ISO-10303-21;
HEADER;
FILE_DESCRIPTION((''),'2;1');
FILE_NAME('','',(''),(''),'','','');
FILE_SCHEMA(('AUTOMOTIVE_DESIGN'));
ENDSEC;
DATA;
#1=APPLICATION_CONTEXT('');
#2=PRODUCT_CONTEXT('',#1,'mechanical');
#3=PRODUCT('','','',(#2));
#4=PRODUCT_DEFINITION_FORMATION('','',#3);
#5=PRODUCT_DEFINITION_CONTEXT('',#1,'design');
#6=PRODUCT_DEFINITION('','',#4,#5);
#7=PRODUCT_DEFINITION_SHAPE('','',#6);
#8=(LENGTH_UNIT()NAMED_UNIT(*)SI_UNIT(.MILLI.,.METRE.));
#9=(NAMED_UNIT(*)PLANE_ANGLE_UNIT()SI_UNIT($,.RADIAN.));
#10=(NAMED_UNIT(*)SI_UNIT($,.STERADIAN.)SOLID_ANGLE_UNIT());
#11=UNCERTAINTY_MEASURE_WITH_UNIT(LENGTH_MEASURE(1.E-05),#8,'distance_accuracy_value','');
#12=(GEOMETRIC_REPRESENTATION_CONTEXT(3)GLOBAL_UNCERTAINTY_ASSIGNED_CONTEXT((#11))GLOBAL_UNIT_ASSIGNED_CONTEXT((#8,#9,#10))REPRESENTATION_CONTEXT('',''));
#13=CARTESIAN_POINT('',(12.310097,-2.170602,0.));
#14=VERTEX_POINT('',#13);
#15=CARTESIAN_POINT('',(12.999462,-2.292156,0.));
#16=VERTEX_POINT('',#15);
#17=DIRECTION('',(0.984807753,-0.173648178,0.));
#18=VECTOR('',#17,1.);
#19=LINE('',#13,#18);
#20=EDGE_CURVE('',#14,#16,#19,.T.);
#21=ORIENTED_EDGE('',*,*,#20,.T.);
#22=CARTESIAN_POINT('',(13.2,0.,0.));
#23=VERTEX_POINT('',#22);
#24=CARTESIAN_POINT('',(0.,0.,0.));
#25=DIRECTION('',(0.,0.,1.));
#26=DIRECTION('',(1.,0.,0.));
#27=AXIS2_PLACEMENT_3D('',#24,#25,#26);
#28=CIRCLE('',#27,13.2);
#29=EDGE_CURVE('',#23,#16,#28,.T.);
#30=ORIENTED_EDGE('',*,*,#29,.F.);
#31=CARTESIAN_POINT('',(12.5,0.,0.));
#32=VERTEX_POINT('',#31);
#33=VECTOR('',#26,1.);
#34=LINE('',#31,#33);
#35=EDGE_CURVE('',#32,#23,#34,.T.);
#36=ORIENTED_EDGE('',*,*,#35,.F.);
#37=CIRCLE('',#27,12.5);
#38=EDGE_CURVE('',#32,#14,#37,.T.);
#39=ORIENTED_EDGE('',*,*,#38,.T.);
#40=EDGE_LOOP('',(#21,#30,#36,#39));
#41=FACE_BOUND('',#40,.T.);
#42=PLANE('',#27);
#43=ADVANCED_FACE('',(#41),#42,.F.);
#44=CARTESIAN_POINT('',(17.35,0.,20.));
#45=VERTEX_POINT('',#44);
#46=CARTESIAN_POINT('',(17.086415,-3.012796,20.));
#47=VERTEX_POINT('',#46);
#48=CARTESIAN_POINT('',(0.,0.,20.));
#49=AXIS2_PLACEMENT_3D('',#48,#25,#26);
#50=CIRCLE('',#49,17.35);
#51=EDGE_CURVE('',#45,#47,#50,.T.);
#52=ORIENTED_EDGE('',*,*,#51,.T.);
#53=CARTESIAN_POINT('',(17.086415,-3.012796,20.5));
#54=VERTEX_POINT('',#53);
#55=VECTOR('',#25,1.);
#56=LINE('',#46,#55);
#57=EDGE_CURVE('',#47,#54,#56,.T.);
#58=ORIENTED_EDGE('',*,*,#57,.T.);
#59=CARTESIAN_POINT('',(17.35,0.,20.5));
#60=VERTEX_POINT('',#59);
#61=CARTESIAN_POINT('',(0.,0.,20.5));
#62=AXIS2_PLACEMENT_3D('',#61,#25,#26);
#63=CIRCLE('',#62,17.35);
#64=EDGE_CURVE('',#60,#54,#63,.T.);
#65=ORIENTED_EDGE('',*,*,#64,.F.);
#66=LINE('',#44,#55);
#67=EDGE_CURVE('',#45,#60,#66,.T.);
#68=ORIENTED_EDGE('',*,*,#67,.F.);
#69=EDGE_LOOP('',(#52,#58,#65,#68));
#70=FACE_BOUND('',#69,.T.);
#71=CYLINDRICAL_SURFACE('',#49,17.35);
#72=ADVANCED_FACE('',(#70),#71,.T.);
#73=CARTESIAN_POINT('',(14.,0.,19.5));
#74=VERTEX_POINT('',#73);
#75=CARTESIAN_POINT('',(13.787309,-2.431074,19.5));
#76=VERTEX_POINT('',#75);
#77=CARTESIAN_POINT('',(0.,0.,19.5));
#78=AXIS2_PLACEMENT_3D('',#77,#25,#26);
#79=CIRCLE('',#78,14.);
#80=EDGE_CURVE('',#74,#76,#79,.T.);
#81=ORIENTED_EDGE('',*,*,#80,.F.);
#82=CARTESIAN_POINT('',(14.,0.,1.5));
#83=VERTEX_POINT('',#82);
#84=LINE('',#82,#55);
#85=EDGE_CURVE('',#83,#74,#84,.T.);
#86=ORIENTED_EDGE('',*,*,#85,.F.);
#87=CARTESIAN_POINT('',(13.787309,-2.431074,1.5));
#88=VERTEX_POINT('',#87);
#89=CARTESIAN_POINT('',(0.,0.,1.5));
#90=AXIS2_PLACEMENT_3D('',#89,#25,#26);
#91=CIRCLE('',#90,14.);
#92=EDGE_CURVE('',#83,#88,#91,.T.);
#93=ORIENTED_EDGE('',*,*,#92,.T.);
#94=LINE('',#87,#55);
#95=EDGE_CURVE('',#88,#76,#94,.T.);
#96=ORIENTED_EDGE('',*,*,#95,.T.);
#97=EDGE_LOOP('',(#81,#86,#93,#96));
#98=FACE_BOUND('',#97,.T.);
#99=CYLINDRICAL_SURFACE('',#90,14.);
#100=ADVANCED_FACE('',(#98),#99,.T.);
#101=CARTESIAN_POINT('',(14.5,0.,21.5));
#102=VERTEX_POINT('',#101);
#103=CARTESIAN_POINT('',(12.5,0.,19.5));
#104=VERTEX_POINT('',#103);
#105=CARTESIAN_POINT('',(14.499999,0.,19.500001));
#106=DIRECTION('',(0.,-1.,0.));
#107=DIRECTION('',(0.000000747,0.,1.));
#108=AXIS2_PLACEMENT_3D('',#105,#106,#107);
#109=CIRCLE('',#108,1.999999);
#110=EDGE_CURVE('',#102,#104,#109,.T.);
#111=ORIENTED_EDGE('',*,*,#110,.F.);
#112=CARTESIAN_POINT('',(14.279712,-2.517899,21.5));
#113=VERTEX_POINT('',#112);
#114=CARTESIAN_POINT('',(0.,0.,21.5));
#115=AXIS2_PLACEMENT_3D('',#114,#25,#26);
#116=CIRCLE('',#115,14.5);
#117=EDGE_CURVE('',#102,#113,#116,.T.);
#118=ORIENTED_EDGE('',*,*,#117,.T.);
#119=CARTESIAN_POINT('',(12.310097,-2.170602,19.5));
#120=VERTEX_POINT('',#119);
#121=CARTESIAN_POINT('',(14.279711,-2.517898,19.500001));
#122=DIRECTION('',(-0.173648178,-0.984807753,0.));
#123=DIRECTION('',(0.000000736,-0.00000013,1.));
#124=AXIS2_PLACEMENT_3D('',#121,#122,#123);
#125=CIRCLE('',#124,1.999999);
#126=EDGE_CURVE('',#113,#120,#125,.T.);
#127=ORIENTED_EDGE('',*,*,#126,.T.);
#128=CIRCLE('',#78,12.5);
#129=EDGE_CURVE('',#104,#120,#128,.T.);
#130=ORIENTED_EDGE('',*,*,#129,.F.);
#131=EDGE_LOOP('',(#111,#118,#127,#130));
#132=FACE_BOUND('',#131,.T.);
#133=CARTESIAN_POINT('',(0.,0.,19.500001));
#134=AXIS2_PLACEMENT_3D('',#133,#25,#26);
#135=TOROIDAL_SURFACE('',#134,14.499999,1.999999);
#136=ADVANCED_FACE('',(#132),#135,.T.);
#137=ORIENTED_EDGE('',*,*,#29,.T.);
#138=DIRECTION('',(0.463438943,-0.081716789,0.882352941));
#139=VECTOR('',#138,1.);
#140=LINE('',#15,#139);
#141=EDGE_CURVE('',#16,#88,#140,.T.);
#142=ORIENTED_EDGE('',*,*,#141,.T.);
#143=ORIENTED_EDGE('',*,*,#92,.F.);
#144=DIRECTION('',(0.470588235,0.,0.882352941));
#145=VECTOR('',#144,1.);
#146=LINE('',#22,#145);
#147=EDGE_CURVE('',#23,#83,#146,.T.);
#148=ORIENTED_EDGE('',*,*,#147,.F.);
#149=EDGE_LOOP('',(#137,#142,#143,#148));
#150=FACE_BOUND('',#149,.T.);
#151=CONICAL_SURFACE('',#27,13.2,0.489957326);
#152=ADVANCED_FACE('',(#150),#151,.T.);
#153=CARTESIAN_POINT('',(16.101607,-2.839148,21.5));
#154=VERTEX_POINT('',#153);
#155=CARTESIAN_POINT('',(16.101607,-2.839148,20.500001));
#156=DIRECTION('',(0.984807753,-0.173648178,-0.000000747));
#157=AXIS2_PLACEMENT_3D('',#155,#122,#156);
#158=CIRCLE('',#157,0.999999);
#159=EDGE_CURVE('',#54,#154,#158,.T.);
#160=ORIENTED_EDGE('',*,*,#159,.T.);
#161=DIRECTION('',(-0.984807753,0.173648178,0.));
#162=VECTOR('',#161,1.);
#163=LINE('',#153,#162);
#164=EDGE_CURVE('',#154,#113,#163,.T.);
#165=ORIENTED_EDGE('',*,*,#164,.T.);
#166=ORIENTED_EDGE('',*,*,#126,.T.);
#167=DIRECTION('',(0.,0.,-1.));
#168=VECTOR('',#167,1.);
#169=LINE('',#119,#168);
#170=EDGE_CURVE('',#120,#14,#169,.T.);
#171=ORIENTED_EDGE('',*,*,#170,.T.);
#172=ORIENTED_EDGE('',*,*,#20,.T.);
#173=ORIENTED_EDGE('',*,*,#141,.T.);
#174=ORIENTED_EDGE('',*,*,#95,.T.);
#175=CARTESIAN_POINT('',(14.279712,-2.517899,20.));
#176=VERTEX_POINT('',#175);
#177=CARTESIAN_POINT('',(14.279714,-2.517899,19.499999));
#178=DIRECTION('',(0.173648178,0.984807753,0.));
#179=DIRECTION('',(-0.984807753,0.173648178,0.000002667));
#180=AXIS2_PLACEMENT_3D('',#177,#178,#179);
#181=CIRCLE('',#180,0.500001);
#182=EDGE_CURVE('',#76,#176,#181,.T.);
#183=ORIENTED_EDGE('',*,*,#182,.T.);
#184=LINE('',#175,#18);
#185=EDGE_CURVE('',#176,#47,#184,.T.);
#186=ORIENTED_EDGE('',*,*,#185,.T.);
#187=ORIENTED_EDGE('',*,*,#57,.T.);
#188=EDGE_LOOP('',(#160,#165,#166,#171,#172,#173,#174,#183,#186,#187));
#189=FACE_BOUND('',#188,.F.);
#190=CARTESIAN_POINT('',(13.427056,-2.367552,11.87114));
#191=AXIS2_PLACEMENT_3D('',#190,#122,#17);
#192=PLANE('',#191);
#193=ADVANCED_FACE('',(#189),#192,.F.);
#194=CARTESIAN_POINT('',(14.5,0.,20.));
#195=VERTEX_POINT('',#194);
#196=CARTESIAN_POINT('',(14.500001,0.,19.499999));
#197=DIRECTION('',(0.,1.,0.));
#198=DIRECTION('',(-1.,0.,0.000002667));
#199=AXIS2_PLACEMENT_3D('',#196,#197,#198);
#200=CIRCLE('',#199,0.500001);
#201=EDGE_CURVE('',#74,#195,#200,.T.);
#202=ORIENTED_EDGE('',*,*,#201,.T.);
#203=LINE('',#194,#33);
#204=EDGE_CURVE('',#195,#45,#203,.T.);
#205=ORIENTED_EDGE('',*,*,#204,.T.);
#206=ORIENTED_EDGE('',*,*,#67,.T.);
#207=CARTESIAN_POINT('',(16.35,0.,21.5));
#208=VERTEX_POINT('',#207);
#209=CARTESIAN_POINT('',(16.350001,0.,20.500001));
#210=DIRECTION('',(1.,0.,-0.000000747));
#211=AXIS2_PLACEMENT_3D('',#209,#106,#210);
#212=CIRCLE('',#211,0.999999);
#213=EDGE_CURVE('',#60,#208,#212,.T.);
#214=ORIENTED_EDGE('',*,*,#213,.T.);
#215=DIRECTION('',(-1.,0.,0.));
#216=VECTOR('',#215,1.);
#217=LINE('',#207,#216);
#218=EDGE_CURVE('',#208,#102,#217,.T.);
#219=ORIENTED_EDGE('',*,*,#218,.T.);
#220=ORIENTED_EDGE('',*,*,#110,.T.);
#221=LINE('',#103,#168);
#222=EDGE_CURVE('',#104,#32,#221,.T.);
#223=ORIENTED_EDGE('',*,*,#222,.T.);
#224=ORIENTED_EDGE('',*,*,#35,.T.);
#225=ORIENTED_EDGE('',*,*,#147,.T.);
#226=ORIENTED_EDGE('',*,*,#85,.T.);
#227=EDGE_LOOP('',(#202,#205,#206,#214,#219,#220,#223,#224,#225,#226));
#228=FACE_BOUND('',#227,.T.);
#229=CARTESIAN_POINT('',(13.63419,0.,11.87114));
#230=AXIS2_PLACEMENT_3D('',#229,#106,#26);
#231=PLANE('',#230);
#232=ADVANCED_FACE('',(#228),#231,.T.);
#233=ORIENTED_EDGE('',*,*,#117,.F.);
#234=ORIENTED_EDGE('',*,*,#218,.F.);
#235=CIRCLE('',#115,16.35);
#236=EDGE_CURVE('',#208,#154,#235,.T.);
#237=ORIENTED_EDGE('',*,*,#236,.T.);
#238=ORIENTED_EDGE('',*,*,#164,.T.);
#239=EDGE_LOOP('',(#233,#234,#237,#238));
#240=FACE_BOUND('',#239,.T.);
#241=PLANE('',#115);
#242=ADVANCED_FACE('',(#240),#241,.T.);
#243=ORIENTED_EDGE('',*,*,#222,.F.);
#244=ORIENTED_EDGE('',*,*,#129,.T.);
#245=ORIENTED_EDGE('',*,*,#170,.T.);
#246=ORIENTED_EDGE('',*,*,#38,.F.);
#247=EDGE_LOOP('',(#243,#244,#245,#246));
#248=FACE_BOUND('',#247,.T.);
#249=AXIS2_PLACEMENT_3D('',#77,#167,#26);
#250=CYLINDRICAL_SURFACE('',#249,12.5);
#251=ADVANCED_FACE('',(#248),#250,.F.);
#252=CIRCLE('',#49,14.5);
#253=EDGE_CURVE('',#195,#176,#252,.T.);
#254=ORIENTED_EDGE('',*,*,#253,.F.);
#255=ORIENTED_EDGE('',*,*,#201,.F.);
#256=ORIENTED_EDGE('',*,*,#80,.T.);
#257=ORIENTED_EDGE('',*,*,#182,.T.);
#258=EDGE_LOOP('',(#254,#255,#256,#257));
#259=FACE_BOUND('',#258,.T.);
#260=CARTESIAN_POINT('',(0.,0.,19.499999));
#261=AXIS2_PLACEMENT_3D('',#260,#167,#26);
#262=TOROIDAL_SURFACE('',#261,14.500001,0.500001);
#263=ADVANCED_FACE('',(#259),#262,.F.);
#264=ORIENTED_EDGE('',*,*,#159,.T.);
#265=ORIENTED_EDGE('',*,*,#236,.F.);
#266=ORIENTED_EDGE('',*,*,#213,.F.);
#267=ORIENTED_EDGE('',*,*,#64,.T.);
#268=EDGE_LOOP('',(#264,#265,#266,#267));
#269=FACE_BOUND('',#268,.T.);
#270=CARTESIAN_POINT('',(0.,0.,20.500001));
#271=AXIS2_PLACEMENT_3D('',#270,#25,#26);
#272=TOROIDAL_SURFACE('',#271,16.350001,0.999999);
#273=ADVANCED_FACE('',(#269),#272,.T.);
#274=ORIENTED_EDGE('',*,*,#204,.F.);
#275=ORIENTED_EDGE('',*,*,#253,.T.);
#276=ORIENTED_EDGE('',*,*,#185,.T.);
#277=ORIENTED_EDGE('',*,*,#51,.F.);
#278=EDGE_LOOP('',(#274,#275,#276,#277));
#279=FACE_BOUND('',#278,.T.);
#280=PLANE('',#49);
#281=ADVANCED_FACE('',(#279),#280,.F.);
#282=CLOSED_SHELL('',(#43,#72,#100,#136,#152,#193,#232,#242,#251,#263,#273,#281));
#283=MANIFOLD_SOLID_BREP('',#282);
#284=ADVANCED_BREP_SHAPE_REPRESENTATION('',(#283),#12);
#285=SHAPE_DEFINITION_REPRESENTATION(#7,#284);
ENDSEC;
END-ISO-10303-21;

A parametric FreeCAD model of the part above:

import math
import FreeCAD as App
import Part
import Sketcher

doc = App.newDocument("Part")
body = doc.addObject("PartDesign::Body", "Body")

# Sketch on XZ plane
sketch1 = body.newObject("Sketcher::SketchObject", "Sketch")
sketch1.AttachmentSupport = (doc.getObject("XZ_Plane"), [""])
sketch1.MapMode = "FlatFace"
sketch1.addGeometry([
    Part.LineSegment(App.Vector(12.5, 19.5, 0), App.Vector(12.5, 0, 0)),  # 0
    Part.LineSegment(App.Vector(12.5, 0, 0), App.Vector(13.2, 0, 0)),  # 1
    Part.LineSegment(App.Vector(13.2, 0, 0), App.Vector(14, 1.5, 0)),  # 2
    Part.LineSegment(App.Vector(14, 1.5, 0), App.Vector(14, 19.5, 0)),  # 3
    Part.ArcOfCircle(Part.Circle(App.Vector(14.500001, 19.499999, 0), App.Vector(0, 0, 1), 0.500001), math.radians(90.000153), math.radians(179.999847)),  # 4
    Part.LineSegment(App.Vector(14.5, 20, 0), App.Vector(17.35, 20, 0)),  # 5
    Part.LineSegment(App.Vector(17.35, 20, 0), App.Vector(17.35, 20.5, 0)),  # 6
    Part.ArcOfCircle(Part.Circle(App.Vector(16.350001, 20.500001, 0), App.Vector(0, 0, 1), 0.999999), math.radians(-0.000043), math.radians(90.000043)),  # 7
    Part.LineSegment(App.Vector(16.35, 21.5, 0), App.Vector(14.5, 21.5, 0)),  # 8
    Part.ArcOfCircle(Part.Circle(App.Vector(14.499999, 19.500001, 0), App.Vector(0, 0, 1), 1.999999), math.radians(89.999957), math.radians(180.000043)),  # 9
], False)
sketch1.addConstraint([
    Sketcher.Constraint("Coincident", 0, 2, 1, 1),
    Sketcher.Constraint("Coincident", 1, 2, 2, 1),
    Sketcher.Constraint("Coincident", 2, 2, 3, 1),
    Sketcher.Constraint("Coincident", 3, 2, 4, 2),
    Sketcher.Constraint("Coincident", 4, 1, 5, 1),
    Sketcher.Constraint("Coincident", 5, 2, 6, 1),
    Sketcher.Constraint("Tangent", 6, 2, 7, 1),
    Sketcher.Constraint("Tangent", 7, 2, 8, 1),
    Sketcher.Constraint("Tangent", 8, 2, 9, 1),
    Sketcher.Constraint("Tangent", 9, 2, 0, 1),
    Sketcher.Constraint("Vertical", 0),
    Sketcher.Constraint("Horizontal", 1),
    Sketcher.Constraint("Vertical", 3),
    Sketcher.Constraint("Horizontal", 5),
    Sketcher.Constraint("Vertical", 6),
    Sketcher.Constraint("Horizontal", 8),
    Sketcher.Constraint("Coincident", 9, 3, 4, 3),
    Sketcher.Constraint("PointOnObject", 0, 2, -1),
    Sketcher.Constraint("Horizontal", 9, 3, 3, 2),
    Sketcher.Constraint("Vertical", 9, 3, 4, 1),
    Sketcher.Constraint("Radius", 7, 0.999999),
    Sketcher.Constraint("Radius", 9, 1.999999),
    Sketcher.Constraint("Radius", 4, 0.500001),
    Sketcher.Constraint("DistanceY", 3, 1, 3, 2, 18.0),
    Sketcher.Constraint("DistanceX", 1, 1, 1, 2, 0.7),
    Sketcher.Constraint("DistanceY", 0, 2, 0, 1, 19.5),
    Sketcher.Constraint("DistanceX", -1, 1, 2, 2, 14.0),
    Sketcher.Constraint("DistanceX", 5, 1, 5, 2, 2.85),
])
revolution = body.newObject("PartDesign::Revolution", "Revolution")
revolution.Profile = sketch1
revolution.ReferenceAxis = (sketch1, ["V_Axis"])
revolution.Angle = 350

doc.recompute()
